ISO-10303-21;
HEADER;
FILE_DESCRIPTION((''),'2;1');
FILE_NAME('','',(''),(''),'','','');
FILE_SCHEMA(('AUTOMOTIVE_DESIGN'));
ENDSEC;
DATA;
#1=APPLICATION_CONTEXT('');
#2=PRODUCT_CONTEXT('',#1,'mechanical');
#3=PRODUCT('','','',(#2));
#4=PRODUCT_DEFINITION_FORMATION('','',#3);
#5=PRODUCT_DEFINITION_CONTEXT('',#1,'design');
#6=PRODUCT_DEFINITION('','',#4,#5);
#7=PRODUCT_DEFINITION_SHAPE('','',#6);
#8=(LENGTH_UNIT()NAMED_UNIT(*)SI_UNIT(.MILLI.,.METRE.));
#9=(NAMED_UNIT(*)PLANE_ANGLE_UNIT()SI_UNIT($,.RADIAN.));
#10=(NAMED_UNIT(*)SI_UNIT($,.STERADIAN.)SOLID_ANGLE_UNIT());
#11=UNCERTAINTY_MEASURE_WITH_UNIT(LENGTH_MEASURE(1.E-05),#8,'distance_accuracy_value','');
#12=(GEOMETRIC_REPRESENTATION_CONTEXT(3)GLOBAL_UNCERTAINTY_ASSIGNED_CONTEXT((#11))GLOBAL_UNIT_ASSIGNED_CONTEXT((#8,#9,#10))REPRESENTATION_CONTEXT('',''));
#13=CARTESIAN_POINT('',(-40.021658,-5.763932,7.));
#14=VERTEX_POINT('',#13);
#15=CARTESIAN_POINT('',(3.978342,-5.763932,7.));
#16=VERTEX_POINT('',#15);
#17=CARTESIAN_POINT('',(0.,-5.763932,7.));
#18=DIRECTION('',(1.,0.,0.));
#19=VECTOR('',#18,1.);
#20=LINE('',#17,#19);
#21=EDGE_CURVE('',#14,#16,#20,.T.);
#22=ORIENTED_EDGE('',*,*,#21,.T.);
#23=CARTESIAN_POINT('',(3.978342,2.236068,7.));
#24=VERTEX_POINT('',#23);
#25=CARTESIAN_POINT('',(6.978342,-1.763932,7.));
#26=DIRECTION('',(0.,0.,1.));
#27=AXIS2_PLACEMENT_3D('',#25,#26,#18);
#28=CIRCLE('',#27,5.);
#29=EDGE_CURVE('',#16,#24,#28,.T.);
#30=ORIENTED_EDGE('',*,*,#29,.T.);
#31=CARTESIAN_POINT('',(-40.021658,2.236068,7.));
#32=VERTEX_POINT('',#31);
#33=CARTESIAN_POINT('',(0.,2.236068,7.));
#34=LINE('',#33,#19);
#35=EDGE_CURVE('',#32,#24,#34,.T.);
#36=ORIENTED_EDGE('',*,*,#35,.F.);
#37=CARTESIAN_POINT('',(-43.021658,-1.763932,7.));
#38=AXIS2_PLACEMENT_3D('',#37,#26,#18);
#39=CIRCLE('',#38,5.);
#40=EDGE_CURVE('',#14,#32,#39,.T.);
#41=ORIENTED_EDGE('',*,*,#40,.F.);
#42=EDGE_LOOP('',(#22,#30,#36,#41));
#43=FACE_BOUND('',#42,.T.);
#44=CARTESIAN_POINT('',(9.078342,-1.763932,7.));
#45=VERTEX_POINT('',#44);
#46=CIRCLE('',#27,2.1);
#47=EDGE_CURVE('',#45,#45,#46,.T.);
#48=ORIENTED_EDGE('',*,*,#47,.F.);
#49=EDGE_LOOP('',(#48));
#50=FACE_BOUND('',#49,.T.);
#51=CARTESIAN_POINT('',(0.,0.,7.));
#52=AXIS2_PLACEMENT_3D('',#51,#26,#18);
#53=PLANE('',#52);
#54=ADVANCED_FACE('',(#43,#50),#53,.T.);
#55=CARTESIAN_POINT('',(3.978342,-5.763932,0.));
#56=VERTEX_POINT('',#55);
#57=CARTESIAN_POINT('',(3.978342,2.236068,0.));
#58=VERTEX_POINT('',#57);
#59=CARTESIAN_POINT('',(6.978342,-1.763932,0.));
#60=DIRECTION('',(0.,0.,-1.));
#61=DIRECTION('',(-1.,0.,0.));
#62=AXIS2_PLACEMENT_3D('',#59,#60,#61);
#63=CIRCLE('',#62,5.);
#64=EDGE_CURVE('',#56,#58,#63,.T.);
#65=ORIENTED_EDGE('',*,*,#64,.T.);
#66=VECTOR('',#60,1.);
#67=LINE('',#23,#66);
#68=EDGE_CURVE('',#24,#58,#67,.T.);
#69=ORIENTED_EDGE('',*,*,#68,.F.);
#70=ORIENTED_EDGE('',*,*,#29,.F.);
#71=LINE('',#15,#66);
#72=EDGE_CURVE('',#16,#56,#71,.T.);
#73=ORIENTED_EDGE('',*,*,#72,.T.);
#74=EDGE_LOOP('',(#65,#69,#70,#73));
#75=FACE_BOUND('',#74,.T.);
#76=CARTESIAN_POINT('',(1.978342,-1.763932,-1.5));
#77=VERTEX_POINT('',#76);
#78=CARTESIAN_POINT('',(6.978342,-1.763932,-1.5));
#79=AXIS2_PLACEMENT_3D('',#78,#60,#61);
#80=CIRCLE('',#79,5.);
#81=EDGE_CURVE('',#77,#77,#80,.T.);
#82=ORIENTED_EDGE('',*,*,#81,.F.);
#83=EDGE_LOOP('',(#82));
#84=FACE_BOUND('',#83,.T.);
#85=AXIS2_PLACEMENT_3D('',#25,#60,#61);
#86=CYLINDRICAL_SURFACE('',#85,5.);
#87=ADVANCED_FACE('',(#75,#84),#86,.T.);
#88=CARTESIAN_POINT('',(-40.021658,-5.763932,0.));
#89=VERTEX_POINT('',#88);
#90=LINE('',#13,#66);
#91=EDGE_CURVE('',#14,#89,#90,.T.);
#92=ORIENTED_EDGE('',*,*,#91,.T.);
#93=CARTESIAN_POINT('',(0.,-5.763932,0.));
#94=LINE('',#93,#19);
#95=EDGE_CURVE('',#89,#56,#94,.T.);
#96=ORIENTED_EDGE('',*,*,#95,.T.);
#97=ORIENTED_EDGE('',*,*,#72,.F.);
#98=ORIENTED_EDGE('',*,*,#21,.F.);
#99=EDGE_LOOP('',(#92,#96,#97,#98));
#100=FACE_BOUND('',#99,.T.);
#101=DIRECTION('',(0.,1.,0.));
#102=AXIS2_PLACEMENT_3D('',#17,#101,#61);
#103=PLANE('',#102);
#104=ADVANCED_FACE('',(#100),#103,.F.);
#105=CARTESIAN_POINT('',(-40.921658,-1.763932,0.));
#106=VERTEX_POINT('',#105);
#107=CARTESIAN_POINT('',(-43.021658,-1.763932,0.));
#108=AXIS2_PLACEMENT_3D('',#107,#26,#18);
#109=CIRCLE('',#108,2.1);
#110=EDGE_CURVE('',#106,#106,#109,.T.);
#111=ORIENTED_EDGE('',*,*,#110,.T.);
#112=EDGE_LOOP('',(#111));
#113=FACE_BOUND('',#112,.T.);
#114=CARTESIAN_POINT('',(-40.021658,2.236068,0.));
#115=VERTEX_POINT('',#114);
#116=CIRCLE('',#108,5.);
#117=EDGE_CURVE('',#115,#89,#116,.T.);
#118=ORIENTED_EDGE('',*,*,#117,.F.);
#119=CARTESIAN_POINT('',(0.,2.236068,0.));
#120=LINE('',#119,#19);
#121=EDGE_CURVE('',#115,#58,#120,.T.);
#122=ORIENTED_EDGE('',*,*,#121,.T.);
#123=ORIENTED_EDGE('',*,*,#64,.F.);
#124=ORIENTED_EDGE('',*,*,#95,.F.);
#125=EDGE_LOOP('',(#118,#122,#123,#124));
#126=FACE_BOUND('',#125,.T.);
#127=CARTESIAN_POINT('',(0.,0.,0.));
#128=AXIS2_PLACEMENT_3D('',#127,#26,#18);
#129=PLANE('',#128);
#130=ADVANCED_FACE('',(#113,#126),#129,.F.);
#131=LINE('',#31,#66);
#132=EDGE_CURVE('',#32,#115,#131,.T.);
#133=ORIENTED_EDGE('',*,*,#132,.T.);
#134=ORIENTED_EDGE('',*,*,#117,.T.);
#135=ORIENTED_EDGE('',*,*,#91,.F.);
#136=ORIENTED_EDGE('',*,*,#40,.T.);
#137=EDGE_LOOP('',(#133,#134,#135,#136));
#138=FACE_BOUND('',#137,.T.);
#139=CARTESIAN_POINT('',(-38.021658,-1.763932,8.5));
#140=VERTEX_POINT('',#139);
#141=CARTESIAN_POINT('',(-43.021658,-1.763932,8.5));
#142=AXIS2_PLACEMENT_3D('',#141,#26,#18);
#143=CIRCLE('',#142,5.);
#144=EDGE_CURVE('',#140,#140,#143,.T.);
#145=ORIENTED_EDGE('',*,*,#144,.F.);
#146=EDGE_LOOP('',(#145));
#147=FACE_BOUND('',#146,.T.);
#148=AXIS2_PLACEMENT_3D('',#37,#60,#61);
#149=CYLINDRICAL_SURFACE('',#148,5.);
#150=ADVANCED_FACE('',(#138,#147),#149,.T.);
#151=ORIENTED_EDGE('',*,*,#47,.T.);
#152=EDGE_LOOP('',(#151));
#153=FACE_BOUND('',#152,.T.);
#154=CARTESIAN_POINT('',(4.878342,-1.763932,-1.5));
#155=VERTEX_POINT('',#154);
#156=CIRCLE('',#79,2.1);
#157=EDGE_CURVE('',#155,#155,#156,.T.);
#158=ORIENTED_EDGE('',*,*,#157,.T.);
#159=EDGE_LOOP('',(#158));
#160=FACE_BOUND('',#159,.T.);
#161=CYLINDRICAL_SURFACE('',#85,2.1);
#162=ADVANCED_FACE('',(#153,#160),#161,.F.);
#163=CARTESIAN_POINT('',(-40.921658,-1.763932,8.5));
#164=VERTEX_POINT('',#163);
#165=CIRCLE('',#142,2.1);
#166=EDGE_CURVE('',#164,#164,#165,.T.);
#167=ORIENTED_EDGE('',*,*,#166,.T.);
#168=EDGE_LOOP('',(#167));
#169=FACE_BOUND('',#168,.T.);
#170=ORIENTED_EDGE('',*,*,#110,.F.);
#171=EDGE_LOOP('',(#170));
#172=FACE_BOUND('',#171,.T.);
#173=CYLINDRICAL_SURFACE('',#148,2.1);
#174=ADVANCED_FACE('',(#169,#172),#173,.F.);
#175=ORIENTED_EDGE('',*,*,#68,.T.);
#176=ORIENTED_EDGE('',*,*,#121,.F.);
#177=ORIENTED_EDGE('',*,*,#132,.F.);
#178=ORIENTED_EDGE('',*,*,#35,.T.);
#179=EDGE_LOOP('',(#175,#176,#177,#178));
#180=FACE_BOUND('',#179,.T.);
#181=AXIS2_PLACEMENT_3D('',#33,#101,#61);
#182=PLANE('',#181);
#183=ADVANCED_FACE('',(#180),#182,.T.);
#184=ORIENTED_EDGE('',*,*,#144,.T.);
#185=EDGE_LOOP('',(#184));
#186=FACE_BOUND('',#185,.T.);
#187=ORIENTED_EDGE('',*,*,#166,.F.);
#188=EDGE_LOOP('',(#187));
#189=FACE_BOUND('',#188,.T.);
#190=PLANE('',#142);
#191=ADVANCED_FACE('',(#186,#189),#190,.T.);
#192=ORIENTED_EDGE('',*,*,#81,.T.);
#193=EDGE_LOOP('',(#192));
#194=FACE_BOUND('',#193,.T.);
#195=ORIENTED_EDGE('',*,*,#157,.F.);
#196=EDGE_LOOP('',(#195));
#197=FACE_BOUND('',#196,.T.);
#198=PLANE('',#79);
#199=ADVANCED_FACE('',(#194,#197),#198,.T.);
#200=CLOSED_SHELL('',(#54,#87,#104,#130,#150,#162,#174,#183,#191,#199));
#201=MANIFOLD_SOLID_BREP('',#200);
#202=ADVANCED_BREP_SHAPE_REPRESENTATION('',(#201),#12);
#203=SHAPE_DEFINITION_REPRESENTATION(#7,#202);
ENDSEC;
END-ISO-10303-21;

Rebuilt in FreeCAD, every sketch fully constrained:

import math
import FreeCAD as App
import Part
import Sketcher
from FreeCAD import Vector

doc = App.newDocument("Part")
params = doc.addObject("Spreadsheet::Sheet", "Params")
for row, (alias, value) in enumerate([
    ("sketch1_radius", "5 mm"),
    ("sketch1_diameter", "4.2 mm"),
    ("sketch1_width", "44 mm"),
    ("pad1_length", "7 mm"),
    ("sketch2_diameter", "10 mm"),
    ("sketch2_diameter2", "4.2 mm"),
    ("pad2_length", "1.5 mm"),
    ("sketch3_diameter", "10 mm"),
    ("sketch3_diameter2", "4.2 mm"),
    ("pad3_length", "1.5 mm"),
], start=1):
    params.set(f"A{row}", alias)
    params.set(f"B{row}", "=" + value)
    params.setAlias(f"B{row}", alias)

body = doc.addObject("PartDesign::Body", "Body")

# Sketch on XY plane
sketch1 = body.newObject("Sketcher::SketchObject", "Sketch")
sketch1.AttachmentSupport = (doc.getObject("XY_Plane"), [""])
sketch1.MapMode = "FlatFace"
sketch1.addGeometry([
    Part.ArcOfCircle(Part.Circle(Vector(-43.021658, -1.763932, 0), Vector(0, 0, 1), 5), math.radians(53.130102), math.radians(306.869898)),  # 0
    Part.LineSegment(Vector(-40.021658, -5.763932, 0), Vector(3.978342, -5.763932, 0)),  # 1
    Part.ArcOfCircle(Part.Circle(Vector(6.978342, -1.763932, 0), Vector(0, 0, 1), 5), math.radians(-126.869898), math.radians(0)),  # 2
    Part.ArcOfCircle(Part.Circle(Vector(6.978342, -1.763932, 0), Vector(0, 0, 1), 5), math.radians(0), math.radians(126.869898)),  # 3
    Part.LineSegment(Vector(3.978342, 2.236068, 0), Vector(-40.021658, 2.236068, 0)),  # 4
    Part.Circle(Vector(-43.021658, -1.763932, 0), Vector(0, 0, 1), 2.1),  # 5
    Part.Circle(Vector(6.978342, -1.763932, 0), Vector(0, 0, 1), 2.1),  # 6
], False)
sketch1.addConstraint([
    Sketcher.Constraint("Coincident", 0, 2, 1, 1),
    Sketcher.Constraint("Coincident", 1, 2, 2, 1),
    Sketcher.Constraint("Tangent", 2, 2, 3, 1),
    Sketcher.Constraint("Coincident", 3, 2, 4, 1),
    Sketcher.Constraint("Coincident", 4, 2, 0, 1),
    Sketcher.Constraint("Horizontal", 1),
    Sketcher.Constraint("Horizontal", 4),
    Sketcher.Constraint("Coincident", 5, 3, 0, 3),
    Sketcher.Constraint("Coincident", 6, 3, 2, 3),
    Sketcher.Constraint("Equal", 0, 2),
    Sketcher.Constraint("Equal", 2, 3),
    Sketcher.Constraint("Equal", 5, 6),
    Sketcher.Constraint("Horizontal", 0, 3, 2, 3),
    Sketcher.Constraint("Horizontal", 6, 3, 2, 2),
    Sketcher.Constraint("Vertical", 1, 2, 3, 2),
    Sketcher.Constraint("Radius", 0, 5.0),
    Sketcher.Constraint("Diameter", 5, 4.2),
    Sketcher.Constraint("DistanceX", 1, 1, 1, 2, 44.0),
    Sketcher.Constraint("DistanceX", 0, 3, 2, 3, 50.0),
    Sketcher.Constraint("DistanceX", 0, 3, -1, 1, 43.021658),
    Sketcher.Constraint("DistanceY", 0, 3, -1, 1, 1.763932),
])
sketch1.setExpression("Constraints[15]", "Params.sketch1_radius")
sketch1.setExpression("Constraints[16]", "Params.sketch1_diameter")
sketch1.setExpression("Constraints[17]", "Params.sketch1_width")
pad1 = body.newObject("PartDesign::Pad", "Pad")
pad1.Profile = sketch1
pad1.setExpression("Length", "Params.pad1_length")

# Sketch on XY plane
sketch2 = body.newObject("Sketcher::SketchObject", "Sketch001")
sketch2.AttachmentSupport = (doc.getObject("XY_Plane"), [""])
sketch2.MapMode = "FlatFace"
sketch2.AttachmentOffset = App.Placement(Vector(0, 0, 7), App.Rotation())
sketch2.addGeometry([
    Part.Circle(Vector(-43.021658, -1.763932, 0), Vector(0, 0, 1), 5),
    Part.Circle(Vector(-43.021658, -1.763932, 0), Vector(0, 0, 1), 2.1),
], False)
sketch2.addConstraint([
    Sketcher.Constraint("Coincident", 1, 3, 0, 3),
    Sketcher.Constraint("Diameter", 0, 10.0),
    Sketcher.Constraint("Diameter", 1, 4.2),
    Sketcher.Constraint("DistanceX", 0, 3, -1, 1, 43.021658),
    Sketcher.Constraint("DistanceY", 0, 3, -1, 1, 1.763932),
])
sketch2.setExpression("Constraints[1]", "Params.sketch2_diameter")
sketch2.setExpression("Constraints[2]", "Params.sketch2_diameter2")
pad2 = body.newObject("PartDesign::Pad", "Pad001")
pad2.Profile = sketch2
pad2.setExpression("Length", "Params.pad2_length")

# Sketch on XY plane
sketch3 = body.newObject("Sketcher::SketchObject", "Sketch002")
sketch3.AttachmentSupport = (doc.getObject("XY_Plane"), [""])
sketch3.MapMode = "FlatFace"
sketch3.addGeometry([
    Part.Circle(Vector(6.978342, -1.763932, 0), Vector(0, 0, 1), 5),
    Part.Circle(Vector(6.978342, -1.763932, 0), Vector(0, 0, 1), 2.1),
], False)
sketch3.addConstraint([
    Sketcher.Constraint("Coincident", 1, 3, 0, 3),
    Sketcher.Constraint("Diameter", 0, 10.0),
    Sketcher.Constraint("Diameter", 1, 4.2),
    Sketcher.Constraint("DistanceX", -1, 1, 0, 3, 6.978342),
    Sketcher.Constraint("DistanceY", 0, 3, -1, 1, 1.763932),
])
sketch3.setExpression("Constraints[1]", "Params.sketch3_diameter")
sketch3.setExpression("Constraints[2]", "Params.sketch3_diameter2")
pad3 = body.newObject("PartDesign::Pad", "Pad002")
pad3.Profile = sketch3
pad3.setExpression("Length", "Params.pad3_length")
pad3.Reversed = True

doc.recompute()
